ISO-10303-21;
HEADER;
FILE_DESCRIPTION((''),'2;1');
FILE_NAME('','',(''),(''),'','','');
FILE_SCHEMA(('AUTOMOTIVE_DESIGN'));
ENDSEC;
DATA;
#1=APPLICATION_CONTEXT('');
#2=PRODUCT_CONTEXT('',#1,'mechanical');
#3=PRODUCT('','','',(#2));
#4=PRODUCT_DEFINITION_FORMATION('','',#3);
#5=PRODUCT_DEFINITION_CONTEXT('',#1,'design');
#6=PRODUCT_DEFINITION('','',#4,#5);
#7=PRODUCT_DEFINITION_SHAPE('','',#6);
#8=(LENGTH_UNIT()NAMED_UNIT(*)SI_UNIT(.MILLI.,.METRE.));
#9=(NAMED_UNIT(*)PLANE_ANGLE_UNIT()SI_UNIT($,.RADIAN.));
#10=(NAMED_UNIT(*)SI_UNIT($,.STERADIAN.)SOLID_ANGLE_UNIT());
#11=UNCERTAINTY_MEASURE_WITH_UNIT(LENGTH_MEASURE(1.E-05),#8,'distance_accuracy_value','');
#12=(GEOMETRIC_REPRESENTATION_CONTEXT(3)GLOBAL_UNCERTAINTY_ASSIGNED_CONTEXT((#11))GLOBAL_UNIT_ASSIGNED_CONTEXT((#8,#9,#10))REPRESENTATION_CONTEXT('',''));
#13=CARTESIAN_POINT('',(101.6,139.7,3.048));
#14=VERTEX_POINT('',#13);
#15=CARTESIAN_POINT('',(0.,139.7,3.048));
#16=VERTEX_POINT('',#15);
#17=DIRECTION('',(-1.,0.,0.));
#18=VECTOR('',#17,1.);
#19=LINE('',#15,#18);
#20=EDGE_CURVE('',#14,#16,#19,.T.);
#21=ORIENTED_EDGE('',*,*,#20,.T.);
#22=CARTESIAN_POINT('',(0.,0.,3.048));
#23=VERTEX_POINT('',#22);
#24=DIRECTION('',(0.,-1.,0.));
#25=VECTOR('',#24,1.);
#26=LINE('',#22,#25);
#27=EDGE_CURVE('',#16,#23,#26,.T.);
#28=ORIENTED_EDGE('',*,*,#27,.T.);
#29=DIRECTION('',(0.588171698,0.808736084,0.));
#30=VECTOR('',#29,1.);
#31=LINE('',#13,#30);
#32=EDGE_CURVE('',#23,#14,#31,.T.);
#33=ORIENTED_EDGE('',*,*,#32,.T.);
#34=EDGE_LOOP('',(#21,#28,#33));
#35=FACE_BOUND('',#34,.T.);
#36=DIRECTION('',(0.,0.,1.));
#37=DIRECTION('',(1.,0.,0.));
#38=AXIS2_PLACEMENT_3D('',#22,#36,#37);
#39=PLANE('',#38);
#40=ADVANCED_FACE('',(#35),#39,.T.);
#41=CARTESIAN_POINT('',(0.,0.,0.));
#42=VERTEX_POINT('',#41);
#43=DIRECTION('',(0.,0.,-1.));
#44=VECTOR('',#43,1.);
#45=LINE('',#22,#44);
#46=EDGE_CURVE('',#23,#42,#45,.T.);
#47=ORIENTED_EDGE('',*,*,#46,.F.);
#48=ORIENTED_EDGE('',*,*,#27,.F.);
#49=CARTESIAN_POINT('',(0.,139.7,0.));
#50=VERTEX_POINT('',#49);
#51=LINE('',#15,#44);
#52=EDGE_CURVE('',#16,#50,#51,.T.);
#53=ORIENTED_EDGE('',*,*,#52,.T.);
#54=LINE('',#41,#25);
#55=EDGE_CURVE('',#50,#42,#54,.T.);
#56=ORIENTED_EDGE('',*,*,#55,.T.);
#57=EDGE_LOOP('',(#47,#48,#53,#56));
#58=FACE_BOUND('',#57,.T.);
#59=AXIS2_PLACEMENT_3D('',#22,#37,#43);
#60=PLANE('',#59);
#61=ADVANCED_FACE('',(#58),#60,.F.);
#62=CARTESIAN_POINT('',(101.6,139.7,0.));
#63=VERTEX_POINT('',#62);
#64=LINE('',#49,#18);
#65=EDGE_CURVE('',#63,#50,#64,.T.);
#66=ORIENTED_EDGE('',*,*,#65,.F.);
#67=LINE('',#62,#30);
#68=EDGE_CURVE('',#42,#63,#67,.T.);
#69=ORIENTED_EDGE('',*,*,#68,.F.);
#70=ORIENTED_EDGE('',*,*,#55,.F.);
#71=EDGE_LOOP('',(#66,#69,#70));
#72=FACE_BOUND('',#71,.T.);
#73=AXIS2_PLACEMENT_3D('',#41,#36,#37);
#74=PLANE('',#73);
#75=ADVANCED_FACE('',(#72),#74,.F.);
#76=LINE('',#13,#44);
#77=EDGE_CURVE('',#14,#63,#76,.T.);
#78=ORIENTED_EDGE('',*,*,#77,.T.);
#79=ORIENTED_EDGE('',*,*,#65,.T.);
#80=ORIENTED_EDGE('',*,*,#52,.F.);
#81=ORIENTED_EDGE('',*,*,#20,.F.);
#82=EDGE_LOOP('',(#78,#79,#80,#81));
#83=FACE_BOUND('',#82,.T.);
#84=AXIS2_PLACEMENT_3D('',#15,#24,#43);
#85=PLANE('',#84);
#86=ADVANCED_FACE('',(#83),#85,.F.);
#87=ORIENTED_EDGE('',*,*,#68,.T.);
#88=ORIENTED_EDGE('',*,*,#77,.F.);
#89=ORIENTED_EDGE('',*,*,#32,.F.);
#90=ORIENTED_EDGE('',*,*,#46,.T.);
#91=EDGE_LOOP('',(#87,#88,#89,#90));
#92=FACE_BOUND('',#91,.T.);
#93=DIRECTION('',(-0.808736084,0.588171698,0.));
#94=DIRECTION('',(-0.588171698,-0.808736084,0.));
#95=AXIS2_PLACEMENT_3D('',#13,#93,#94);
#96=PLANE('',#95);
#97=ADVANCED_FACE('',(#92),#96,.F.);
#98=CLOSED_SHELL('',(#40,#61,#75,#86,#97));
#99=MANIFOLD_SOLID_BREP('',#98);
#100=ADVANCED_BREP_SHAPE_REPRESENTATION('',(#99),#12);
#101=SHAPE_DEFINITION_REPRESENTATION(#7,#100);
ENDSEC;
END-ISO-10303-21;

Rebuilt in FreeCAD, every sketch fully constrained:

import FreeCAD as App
import Part
import Sketcher
Q = App.Units.Quantity

doc = App.newDocument("Part")
params = doc.addObject("Spreadsheet::Sheet", "Params")
for row, (alias, value) in enumerate([
    ("sketch1_width", "4 in"),
    ("sketch1_height", "5.5 in"),
    ("pad1_length", "0.12 in"),
], start=1):
    params.set(f"A{row}", alias)
    params.set(f"B{row}", "=" + value)
    params.setAlias(f"B{row}", alias)

body = doc.addObject("PartDesign::Body", "Body")

sketch1 = body.newObject("Sketcher::SketchObject", "Sketch")
sketch1.AttachmentSupport = (doc.getObject("XY_Plane"), [""])
sketch1.MapMode = "FlatFace"
sketch1.addGeometry([
    Part.LineSegment(App.Vector(0, 140, 0), App.Vector(0, 0, 0)),
    Part.LineSegment(App.Vector(0, 0, 0), App.Vector(102, 140, 0)),
    Part.LineSegment(App.Vector(102, 140, 0), App.Vector(0, 140, 0)),
], False)
sketch1.addConstraint([
    Sketcher.Constraint("Coincident", 0, 2, 1, 1),
    Sketcher.Constraint("Coincident", 1, 2, 2, 1),
    Sketcher.Constraint("Coincident", 2, 2, 0, 1),
    Sketcher.Constraint("Vertical", 0),
    Sketcher.Constraint("Horizontal", 2),
    Sketcher.Constraint("Coincident", 0, 2, -1, 1),
    Sketcher.Constraint("DistanceX", 2, 2, 2, 1, Q("4 in")),
    Sketcher.Constraint("DistanceY", 0, 2, 0, 1, Q("5.5 in")),
])
sketch1.setExpression("Constraints[6]", "Params.sketch1_width")
sketch1.setExpression("Constraints[7]", "Params.sketch1_height")
pad1 = body.newObject("PartDesign::Pad", "Pad")
pad1.Profile = sketch1
pad1.setExpression("Length", "Params.pad1_length")

doc.recompute()
